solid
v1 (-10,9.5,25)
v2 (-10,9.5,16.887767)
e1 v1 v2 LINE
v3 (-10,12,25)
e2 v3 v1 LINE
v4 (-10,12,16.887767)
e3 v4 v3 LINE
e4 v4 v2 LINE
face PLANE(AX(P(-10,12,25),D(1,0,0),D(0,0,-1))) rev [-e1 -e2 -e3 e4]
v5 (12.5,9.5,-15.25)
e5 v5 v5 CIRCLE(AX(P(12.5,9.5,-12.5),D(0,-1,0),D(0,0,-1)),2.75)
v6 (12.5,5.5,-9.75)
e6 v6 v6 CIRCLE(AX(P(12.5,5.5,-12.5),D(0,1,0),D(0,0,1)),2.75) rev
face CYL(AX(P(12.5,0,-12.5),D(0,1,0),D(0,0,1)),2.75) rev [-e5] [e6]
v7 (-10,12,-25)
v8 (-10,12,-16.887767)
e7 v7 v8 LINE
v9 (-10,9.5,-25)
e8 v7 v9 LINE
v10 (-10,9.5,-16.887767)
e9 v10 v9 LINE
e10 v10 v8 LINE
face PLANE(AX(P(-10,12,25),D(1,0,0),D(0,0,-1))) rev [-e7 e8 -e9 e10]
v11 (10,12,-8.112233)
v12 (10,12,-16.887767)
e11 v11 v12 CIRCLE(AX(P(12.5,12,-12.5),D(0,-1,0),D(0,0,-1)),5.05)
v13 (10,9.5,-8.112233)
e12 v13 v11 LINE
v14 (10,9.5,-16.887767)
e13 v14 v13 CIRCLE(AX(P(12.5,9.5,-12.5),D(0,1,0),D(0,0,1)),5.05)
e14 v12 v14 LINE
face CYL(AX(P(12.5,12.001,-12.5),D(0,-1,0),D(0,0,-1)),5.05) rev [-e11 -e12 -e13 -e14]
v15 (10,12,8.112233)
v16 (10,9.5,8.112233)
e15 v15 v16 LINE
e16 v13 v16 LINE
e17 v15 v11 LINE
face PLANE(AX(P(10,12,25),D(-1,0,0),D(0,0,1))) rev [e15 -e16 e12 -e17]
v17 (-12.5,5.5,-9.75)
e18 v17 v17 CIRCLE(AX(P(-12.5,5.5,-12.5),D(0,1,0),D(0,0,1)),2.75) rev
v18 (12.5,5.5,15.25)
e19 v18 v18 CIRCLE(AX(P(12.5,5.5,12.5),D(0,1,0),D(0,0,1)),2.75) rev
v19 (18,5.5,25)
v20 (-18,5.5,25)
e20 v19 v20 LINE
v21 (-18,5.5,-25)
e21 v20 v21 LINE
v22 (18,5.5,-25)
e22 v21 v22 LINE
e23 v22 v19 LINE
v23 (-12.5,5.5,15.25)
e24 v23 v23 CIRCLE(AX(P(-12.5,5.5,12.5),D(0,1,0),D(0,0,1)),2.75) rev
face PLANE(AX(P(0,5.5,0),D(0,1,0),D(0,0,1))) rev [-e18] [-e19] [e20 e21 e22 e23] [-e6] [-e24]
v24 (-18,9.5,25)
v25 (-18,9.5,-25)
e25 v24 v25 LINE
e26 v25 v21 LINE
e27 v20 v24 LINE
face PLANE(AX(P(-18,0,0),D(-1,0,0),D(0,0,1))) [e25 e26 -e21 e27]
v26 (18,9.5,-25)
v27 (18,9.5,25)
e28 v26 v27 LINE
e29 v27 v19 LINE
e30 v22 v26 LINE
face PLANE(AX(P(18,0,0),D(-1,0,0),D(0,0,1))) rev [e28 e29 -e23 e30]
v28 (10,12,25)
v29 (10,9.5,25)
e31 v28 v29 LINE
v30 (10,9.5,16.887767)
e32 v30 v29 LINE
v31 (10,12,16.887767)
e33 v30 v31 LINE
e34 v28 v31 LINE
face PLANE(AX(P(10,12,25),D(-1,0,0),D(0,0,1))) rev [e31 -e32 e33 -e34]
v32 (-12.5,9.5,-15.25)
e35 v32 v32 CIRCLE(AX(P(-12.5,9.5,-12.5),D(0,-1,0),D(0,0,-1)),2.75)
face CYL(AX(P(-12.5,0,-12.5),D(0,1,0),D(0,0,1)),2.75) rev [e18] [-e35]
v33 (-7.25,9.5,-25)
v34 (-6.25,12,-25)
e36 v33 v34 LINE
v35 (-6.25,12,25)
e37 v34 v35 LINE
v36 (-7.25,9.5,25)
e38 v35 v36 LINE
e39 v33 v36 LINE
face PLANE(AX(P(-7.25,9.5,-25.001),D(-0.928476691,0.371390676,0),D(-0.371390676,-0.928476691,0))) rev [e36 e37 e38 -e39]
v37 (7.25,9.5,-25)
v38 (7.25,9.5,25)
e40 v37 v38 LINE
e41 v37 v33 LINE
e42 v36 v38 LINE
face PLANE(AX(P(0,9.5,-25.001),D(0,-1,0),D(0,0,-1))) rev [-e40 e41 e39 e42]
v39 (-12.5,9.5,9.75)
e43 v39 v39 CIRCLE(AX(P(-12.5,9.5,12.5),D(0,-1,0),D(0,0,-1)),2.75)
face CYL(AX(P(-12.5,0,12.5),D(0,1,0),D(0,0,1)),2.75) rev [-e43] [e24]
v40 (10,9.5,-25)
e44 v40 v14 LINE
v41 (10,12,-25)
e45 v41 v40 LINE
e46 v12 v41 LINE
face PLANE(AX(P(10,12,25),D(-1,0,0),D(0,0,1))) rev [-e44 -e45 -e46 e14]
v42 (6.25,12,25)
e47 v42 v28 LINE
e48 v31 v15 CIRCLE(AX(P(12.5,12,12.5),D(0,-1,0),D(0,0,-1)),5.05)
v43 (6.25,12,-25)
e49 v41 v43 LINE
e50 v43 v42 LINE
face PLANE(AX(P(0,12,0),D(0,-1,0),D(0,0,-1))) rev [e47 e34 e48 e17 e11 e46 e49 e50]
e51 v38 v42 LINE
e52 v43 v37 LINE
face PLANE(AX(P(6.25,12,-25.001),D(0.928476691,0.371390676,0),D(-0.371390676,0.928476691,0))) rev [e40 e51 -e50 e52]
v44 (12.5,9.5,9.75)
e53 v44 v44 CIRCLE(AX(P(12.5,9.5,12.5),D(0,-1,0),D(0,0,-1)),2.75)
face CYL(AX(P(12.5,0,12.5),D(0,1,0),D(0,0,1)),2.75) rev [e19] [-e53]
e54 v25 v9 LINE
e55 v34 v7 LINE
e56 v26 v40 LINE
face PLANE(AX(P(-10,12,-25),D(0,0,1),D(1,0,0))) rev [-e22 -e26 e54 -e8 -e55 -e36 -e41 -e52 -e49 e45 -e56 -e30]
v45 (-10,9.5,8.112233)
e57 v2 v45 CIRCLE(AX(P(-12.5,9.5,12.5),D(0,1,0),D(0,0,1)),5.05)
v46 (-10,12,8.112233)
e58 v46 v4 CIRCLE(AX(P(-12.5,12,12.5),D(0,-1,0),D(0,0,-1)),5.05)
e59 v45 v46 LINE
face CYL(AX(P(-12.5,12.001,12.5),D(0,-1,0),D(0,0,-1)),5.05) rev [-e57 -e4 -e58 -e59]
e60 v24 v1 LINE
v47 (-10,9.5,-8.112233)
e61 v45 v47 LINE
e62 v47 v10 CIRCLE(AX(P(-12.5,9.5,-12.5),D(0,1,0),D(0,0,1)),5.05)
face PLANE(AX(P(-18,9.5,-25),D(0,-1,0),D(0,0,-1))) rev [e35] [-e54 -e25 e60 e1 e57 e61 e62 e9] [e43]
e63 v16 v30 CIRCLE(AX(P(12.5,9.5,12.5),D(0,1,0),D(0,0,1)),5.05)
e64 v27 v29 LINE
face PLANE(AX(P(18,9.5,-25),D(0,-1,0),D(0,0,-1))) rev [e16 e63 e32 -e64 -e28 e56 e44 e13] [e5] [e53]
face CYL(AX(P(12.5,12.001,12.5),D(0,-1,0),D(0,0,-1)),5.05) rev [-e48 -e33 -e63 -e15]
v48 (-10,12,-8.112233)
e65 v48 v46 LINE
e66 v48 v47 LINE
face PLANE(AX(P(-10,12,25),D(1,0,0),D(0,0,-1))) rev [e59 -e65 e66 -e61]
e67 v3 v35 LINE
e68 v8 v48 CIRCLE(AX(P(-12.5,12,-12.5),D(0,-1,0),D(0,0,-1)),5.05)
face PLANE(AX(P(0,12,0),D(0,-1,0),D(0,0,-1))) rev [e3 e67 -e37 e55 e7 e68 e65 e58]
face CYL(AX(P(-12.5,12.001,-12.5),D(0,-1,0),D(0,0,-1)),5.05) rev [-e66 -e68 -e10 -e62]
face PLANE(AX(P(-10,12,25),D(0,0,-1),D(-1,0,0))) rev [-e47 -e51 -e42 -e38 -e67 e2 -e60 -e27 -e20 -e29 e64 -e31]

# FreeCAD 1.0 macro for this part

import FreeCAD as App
import Part
import Sketcher

V = App.Vector

doc = App.newDocument("Part")
body = doc.addObject("PartDesign::Body", "Body")

# Sketch on XZ plane
sketch1 = body.newObject("Sketcher::SketchObject", "Sketch")
sketch1.AttachmentSupport = (doc.getObject("XZ_Plane"), [""])
sketch1.MapMode = "FlatFace"
sketch1.addGeometry([
    Part.LineSegment(V(-10, -25, 0), V(-10, 25, 0)),
    Part.LineSegment(V(-10, 25, 0), V(10, 25, 0)),
    Part.LineSegment(V(10, 25, 0), V(10, -25, 0)),
    Part.LineSegment(V(10, -25, 0), V(-10, -25, 0)),
], False)
sketch1.addConstraint([
    Sketcher.Constraint("Coincident", 0, 2, 1, 1),
    Sketcher.Constraint("Coincident", 1, 2, 2, 1),
    Sketcher.Constraint("Coincident", 2, 2, 3, 1),
    Sketcher.Constraint("Coincident", 3, 2, 0, 1),
    Sketcher.Constraint("Vertical", 0),
    Sketcher.Constraint("Horizontal", 1),
    Sketcher.Constraint("Vertical", 2),
    Sketcher.Constraint("Horizontal", 3),
    Sketcher.Constraint("Symmetric", 0, 2, 2, 2, -1, 1),
    Sketcher.Constraint("DistanceX", 1, 1, 1, 2, 20.0),
    Sketcher.Constraint("DistanceY", 0, 1, 0, 2, 50.0),
])
pad1 = body.newObject("PartDesign::Pad", "Pad")
pad1.Profile = sketch1
pad1.Length = 12
pad1.Reversed = True

# Sketch on XY plane
sketch2 = body.newObject("Sketcher::SketchObject", "Sketch001")
sketch2.AttachmentSupport = (doc.getObject("XY_Plane"), [""])
sketch2.MapMode = "FlatFace"
sketch2.AttachmentOffset = App.Placement(V(0, 0, 25), App.Rotation())
sketch2.addGeometry([
    Part.LineSegment(V(7.2, 9.5, 0), V(6.2, 12, 0)),
    Part.LineSegment(V(6.2, 12, 0), V(-6.2, 12, 0)),
    Part.LineSegment(V(-6.2, 12, 0), V(-7.2, 9.5, 0)),
    Part.LineSegment(V(-7.2, 9.5, 0), V(7.2, 9.5, 0)),
], False)
sketch2.addConstraint([
    Sketcher.Constraint("Coincident", 0, 2, 1, 1),
    Sketcher.Constraint("Coincident", 1, 2, 2, 1),
    Sketcher.Constraint("Coincident", 2, 2, 3, 1),
    Sketcher.Constraint("Coincident", 3, 2, 0, 1),
    Sketcher.Constraint("Horizontal", 1),
    Sketcher.Constraint("Horizontal", 3),
    Sketcher.Constraint("Equal", 0, 2),
    Sketcher.Constraint("DistanceX", 1, 2, 1, 1, 12.5),
    Sketcher.Constraint("DistanceX", 3, 1, 3, 2, 14.5),
    Sketcher.Constraint("DistanceY", -1, 1, 0, 2, 12.0),
    Sketcher.Constraint("DistanceY", -1, 1, 2, 2, 9.5),
    Sketcher.Constraint("DistanceX", -1, 1, 0, 2, 6.25),
])
pocket1 = body.newObject("PartDesign::Pocket", "Pocket")
pocket1.Profile = sketch2
pocket1.Type = "UpToFirst"

# Sketch on YZ plane
sketch3 = body.newObject("Sketcher::SketchObject", "Sketch002")
sketch3.AttachmentSupport = (doc.getObject("YZ_Plane"), [""])
sketch3.MapMode = "FlatFace"
sketch3.AttachmentOffset = App.Placement(V(0, 0, -10), App.Rotation())
sketch3.addGeometry([
    Part.LineSegment(V(10, -25, 0), V(0, -25, 0)),
    Part.LineSegment(V(0, -25, 0), V(0, 25, 0)),
    Part.LineSegment(V(0, 25, 0), V(10, 25, 0)),
    Part.LineSegment(V(10, 25, 0), V(10, -25, 0)),
], False)
sketch3.addConstraint([
    Sketcher.Constraint("Coincident", 0, 2, 1, 1),
    Sketcher.Constraint("Coincident", 1, 2, 2, 1),
    Sketcher.Constraint("Coincident", 2, 2, 3, 1),
    Sketcher.Constraint("Coincident", 3, 2, 0, 1),
    Sketcher.Constraint("Horizontal", 0),
    Sketcher.Constraint("Vertical", 1),
    Sketcher.Constraint("Horizontal", 2),
    Sketcher.Constraint("Vertical", 3),
    Sketcher.Constraint("Symmetric", 0, 2, 1, 2, -1, 1),
    Sketcher.Constraint("DistanceY", 1, 1, 1, 2, 50.0),
    Sketcher.Constraint("DistanceX", 0, 2, 0, 1, 9.5),
])
pad2 = body.newObject("PartDesign::Pad", "Pad001")
pad2.Profile = sketch3
pad2.Length = 8
pad2.Reversed = True

# Sketch on YZ plane
sketch4 = body.newObject("Sketcher::SketchObject", "Sketch003")
sketch4.AttachmentSupport = (doc.getObject("YZ_Plane"), [""])
sketch4.MapMode = "FlatFace"
sketch4.AttachmentOffset = App.Placement(V(0, 0, 10), App.Rotation())
sketch4.addGeometry([
    Part.LineSegment(V(10, 25, 0), V(0, 25, 0)),
    Part.LineSegment(V(0, 25, 0), V(0, -25, 0)),
    Part.LineSegment(V(0, -25, 0), V(10, -25, 0)),
    Part.LineSegment(V(10, -25, 0), V(10, 25, 0)),
], False)
sketch4.addConstraint([
    Sketcher.Constraint("Coincident", 0, 2, 1, 1),
    Sketcher.Constraint("Coincident", 1, 2, 2, 1),
    Sketcher.Constraint("Coincident", 2, 2, 3, 1),
    Sketcher.Constraint("Coincident", 3, 2, 0, 1),
    Sketcher.Constraint("Horizontal", 0),
    Sketcher.Constraint("Vertical", 1),
    Sketcher.Constraint("Horizontal", 2),
    Sketcher.Constraint("Vertical", 3),
    Sketcher.Constraint("Symmetric", 0, 2, 1, 2, -1, 1),
    Sketcher.Constraint("DistanceY", 1, 2, 1, 1, 50.0),
    Sketcher.Constraint("DistanceX", 0, 2, 0, 1, 9.5),
])
pad3 = body.newObject("PartDesign::Pad", "Pad002")
pad3.Profile = sketch4
pad3.Length = 8

# Sketch on XZ plane
sketch5 = body.newObject("Sketcher::SketchObject", "Sketch004")
sketch5.AttachmentSupport = (doc.getObject("XZ_Plane"), [""])
sketch5.MapMode = "FlatFace"
sketch5.AttachmentOffset = App.Placement(V(0, 0, -9.5), App.Rotation())
sketch5.addGeometry([
    Part.Circle(V(-12.5, -12.5, 0), V(0, 0, 1), 2.8),
    Part.Circle(V(12.5, -12.5, 0), V(0, 0, 1), 2.8),
    Part.Circle(V(-12.5, 12.5, 0), V(0, 0, 1), 2.8),
    Part.Circle(V(12.5, 12.5, 0), V(0, 0, 1), 2.8),
], False)
sketch5.addConstraint([
    Sketcher.Constraint("Equal", 0, 1),
    Sketcher.Constraint("Equal", 1, 2),
    Sketcher.Constraint("Equal", 2, 3),
    Sketcher.Constraint("Symmetric", 1, 3, 2, 3, -1, 1),
    Sketcher.Constraint("Symmetric", 0, 3, 3, 3, -1, 1),
    Sketcher.Constraint("Symmetric", 0, 3, 1, 3, -2),
    Sketcher.Constraint("Diameter", 0, 5.5),
    Sketcher.Constraint("DistanceX", 0, 3, 1, 3, 25.0),
    Sketcher.Constraint("DistanceY", 0, 3, 2, 3, 25.0),
])
pocket2 = body.newObject("PartDesign::Pocket", "Pocket001")
pocket2.Profile = sketch5
pocket2.Type = "ThroughAll"
pocket2.Midplane = True

# Sketch on XZ plane
sketch6 = body.newObject("Sketcher::SketchObject", "Sketch005")
sketch6.AttachmentSupport = (doc.getObject("XZ_Plane"), [""])
sketch6.MapMode = "FlatFace"
sketch6.addGeometry([
    Part.LineSegment(V(-18, 25, 0), V(-18, -25, 0)),
    Part.LineSegment(V(-18, -25, 0), V(18, -25, 0)),
    Part.LineSegment(V(18, -25, 0), V(18, 25, 0)),
    Part.LineSegment(V(18, 25, 0), V(-18, 25, 0)),
], False)
sketch6.addConstraint([
    Sketcher.Constraint("Coincident", 0, 2, 1, 1),
    Sketcher.Constraint("Coincident", 1, 2, 2, 1),
    Sketcher.Constraint("Coincident", 2, 2, 3, 1),
    Sketcher.Constraint("Coincident", 3, 2, 0, 1),
    Sketcher.Constraint("Vertical", 0),
    Sketcher.Constraint("Horizontal", 1),
    Sketcher.Constraint("Vertical", 2),
    Sketcher.Constraint("Horizontal", 3),
    Sketcher.Constraint("Symmetric", 0, 2, 2, 2, -1, 1),
    Sketcher.Constraint("DistanceX", 1, 1, 1, 2, 36.0),
    Sketcher.Constraint("DistanceY", 0, 2, 0, 1, 50.0),
])
pocket3 = body.newObject("PartDesign::Pocket", "Pocket002")
pocket3.Profile = sketch6
pocket3.Length = 5.5

# Sketch on XZ plane
sketch7 = body.newObject("Sketcher::SketchObject", "Sketch006")
sketch7.AttachmentSupport = (doc.getObject("XZ_Plane"), [""])
sketch7.MapMode = "FlatFace"
sketch7.AttachmentOffset = App.Placement(V(0, 0, -9.5), App.Rotation())
sketch7.addGeometry(Part.Circle(V(-12, -12, 0), V(0, 0, 1), 5), False)
sketch7.addConstraint([
    Sketcher.Constraint("Diameter", 0, 10.1),
    Sketcher.Constraint("DistanceX", 0, 3, -1, 1, 12.5),
    Sketcher.Constraint("DistanceY", 0, 3, -1, 1, 12.5),
])
pocket4 = body.newObject("PartDesign::Pocket", "Pocket003")
pocket4.Profile = sketch7
pocket4.Length = 2.5

# Sketch on XZ plane
sketch8 = body.newObject("Sketcher::SketchObject", "Sketch007")
sketch8.AttachmentSupport = (doc.getObject("XZ_Plane"), [""])
sketch8.MapMode = "FlatFace"
sketch8.AttachmentOffset = App.Placement(V(0, 0, -9.5), App.Rotation())
sketch8.addGeometry(Part.Circle(V(12, -12, 0), V(0, 0, 1), 5), False)
sketch8.addConstraint([
    Sketcher.Constraint("Diameter", 0, 10.1),
    Sketcher.Constraint("DistanceX", -1, 1, 0, 3, 12.5),
    Sketcher.Constraint("DistanceY", 0, 3, -1, 1, 12.5),
])
pocket5 = body.newObject("PartDesign::Pocket", "Pocket004")
pocket5.Profile = sketch8
pocket5.Length = 2.5

# Sketch on XZ plane
sketch9 = body.newObject("Sketcher::SketchObject", "Sketch008")
sketch9.AttachmentSupport = (doc.getObject("XZ_Plane"), [""])
sketch9.MapMode = "FlatFace"
sketch9.AttachmentOffset = App.Placement(V(0, 0, -9.5), App.Rotation())
sketch9.addGeometry(Part.Circle(V(-12, 12, 0), V(0, 0, 1), 5), False)
sketch9.addConstraint([
    Sketcher.Constraint("Diameter", 0, 10.1),
    Sketcher.Constraint("DistanceX", 0, 3, -1, 1, 12.5),
    Sketcher.Constraint("DistanceY", -1, 1, 0, 3, 12.5),
])
pocket6 = body.newObject("PartDesign::Pocket", "Pocket005")
pocket6.Profile = sketch9
pocket6.Length = 2.5

# Sketch on XZ plane
sketch10 = body.newObject("Sketcher::SketchObject", "Sketch009")
sketch10.AttachmentSupport = (doc.getObject("XZ_Plane"), [""])
sketch10.MapMode = "FlatFace"
sketch10.AttachmentOffset = App.Placement(V(0, 0, -9.5), App.Rotation())
sketch10.addGeometry(Part.Circle(V(12, 12, 0), V(0, 0, 1), 5), False)
sketch10.addConstraint([
    Sketcher.Constraint("Diameter", 0, 10.1),
    Sketcher.Constraint("DistanceX", -1, 1, 0, 3, 12.5),
    Sketcher.Constraint("DistanceY", -1, 1, 0, 3, 12.5),
])
pocket7 = body.newObject("PartDesign::Pocket", "Pocket006")
pocket7.Profile = sketch10
pocket7.Length = 2.5

doc.recompute()
